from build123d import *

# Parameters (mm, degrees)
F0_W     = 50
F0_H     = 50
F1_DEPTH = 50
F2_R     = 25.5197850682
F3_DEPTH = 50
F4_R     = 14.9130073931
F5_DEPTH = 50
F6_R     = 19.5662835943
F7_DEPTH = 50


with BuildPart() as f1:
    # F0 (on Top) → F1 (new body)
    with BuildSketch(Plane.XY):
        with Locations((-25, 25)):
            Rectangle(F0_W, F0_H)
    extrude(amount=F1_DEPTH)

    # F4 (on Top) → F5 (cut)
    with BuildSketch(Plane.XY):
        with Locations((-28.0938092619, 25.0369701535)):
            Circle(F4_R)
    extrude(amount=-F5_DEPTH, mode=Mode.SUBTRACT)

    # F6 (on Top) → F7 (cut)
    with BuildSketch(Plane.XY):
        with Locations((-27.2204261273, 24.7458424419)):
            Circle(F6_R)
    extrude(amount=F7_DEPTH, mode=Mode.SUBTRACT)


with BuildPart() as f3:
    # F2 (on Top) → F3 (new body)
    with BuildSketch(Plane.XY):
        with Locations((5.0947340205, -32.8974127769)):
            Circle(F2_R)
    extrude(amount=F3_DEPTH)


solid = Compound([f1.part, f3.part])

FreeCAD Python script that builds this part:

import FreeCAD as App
import Part
import Sketcher

V = App.Vector


def add_polygon(sketch, points):
    """Adds a closed chain of lines whose ends are joined by coincident constraints."""
    first, n = sketch.GeometryCount, len(points)
    for a, b in zip(points, points[1:] + points[:1]):
        sketch.addGeometry(Part.LineSegment(App.Vector(*a, 0), App.Vector(*b, 0)), False)
    for i in range(n):
        sketch.addConstraint(Sketcher.Constraint("Coincident", first + i, 2, first + (i + 1) % n, 1))

doc = App.newDocument("Part")
params = doc.addObject("Spreadsheet::Sheet", "Params")
for row, (alias, value) in enumerate([
    ("sketch1_width", "50 mm"),
    ("pad1_length", "50 mm"),
    ("pocket1_length", "50 mm"),
    ("pocket2_length", "50 mm"),
    ("pad2_length", "50 mm"),
], start=1):
    params.set(f"A{row}", alias)
    params.set(f"B{row}", "=" + value)
    params.setAlias(f"B{row}", alias)

body = doc.addObject("PartDesign::Body", "Body")

# Sketch on XY plane
sketch1 = body.newObject("Sketcher::SketchObject", "Sketch")
sketch1.AttachmentSupport = (doc.getObject("XY_Plane"), [""])
sketch1.MapMode = "FlatFace"
add_polygon(sketch1, [(-50, 50), (-50, 0), (0, 0), (0, 50)])  # lines 0-3
sketch1.addConstraint([
    Sketcher.Constraint("Vertical", 0),
    Sketcher.Constraint("Horizontal", 1),
    Sketcher.Constraint("Vertical", 2),
    Sketcher.Constraint("Horizontal", 3),
    Sketcher.Constraint("Coincident", 1, 2, -1, 1),
    Sketcher.Constraint("Equal", 3, 0),
    Sketcher.Constraint("DistanceX", 1, 1, 1, 2, 50.0),
])
sketch1.setExpression("Constraints[10]", "Params.sketch1_width")
pad1 = body.newObject("PartDesign::Pad", "Pad")
pad1.Profile = sketch1
pad1.setExpression("Length", "Params.pad1_length")

# Sketch on XY plane
sketch2 = body.newObject("Sketcher::SketchObject", "Sketch001")
sketch2.AttachmentSupport = (doc.getObject("XY_Plane"), [""])
sketch2.MapMode = "FlatFace"
sketch2.addGeometry(Part.Circle(V(-28, 25, 0), V(0, 0, 1), 15), False)
sketch2.addConstraint([
    Sketcher.Constraint("Diameter", 0, 29.826015),
    Sketcher.Constraint("DistanceX", 0, 3, -1, 1, 28.093809),
    Sketcher.Constraint("DistanceY", -1, 1, 0, 3, 25.03697),
])
pocket1 = body.newObject("PartDesign::Pocket", "Pocket")
pocket1.Profile = sketch2
pocket1.setExpression("Length", "Params.pocket1_length")

# Sketch on XY plane
sketch3 = body.newObject("Sketcher::SketchObject", "Sketch002")
sketch3.AttachmentSupport = (doc.getObject("XY_Plane"), [""])
sketch3.MapMode = "FlatFace"
sketch3.addGeometry(Part.Circle(V(-27, 25, 0), V(0, 0, 1), 20), False)
sketch3.addConstraint([
    Sketcher.Constraint("Diameter", 0, 39.132567),
    Sketcher.Constraint("DistanceX", 0, 3, -1, 1, 27.220426),
    Sketcher.Constraint("DistanceY", -1, 1, 0, 3, 24.745842),
])
pocket2 = body.newObject("PartDesign::Pocket", "Pocket001")
pocket2.Profile = sketch3
pocket2.setExpression("Length", "Params.pocket2_length")
pocket2.Reversed = True
body2 = doc.addObject("PartDesign::Body", "Body001")

# Sketch on XY plane
sketch4 = body2.newObject("Sketcher::SketchObject", "Sketch003")
sketch4.AttachmentSupport = (doc.getObject("XY_Plane001"), [""])
sketch4.MapMode = "FlatFace"
sketch4.addGeometry(Part.Circle(V(5, -33, 0), V(0, 0, 1), 26), False)
sketch4.addConstraint([
    Sketcher.Constraint("Diameter", 0, 51.03957),
    Sketcher.Constraint("DistanceX", -1, 1, 0, 3, 5.094734),
    Sketcher.Constraint("DistanceY", 0, 3, -1, 1, 32.897413),
])
pad2 = body2.newObject("PartDesign::Pad", "Pad001")
pad2.Profile = sketch4
pad2.setExpression("Length", "Params.pad2_length")

doc.recompute()
